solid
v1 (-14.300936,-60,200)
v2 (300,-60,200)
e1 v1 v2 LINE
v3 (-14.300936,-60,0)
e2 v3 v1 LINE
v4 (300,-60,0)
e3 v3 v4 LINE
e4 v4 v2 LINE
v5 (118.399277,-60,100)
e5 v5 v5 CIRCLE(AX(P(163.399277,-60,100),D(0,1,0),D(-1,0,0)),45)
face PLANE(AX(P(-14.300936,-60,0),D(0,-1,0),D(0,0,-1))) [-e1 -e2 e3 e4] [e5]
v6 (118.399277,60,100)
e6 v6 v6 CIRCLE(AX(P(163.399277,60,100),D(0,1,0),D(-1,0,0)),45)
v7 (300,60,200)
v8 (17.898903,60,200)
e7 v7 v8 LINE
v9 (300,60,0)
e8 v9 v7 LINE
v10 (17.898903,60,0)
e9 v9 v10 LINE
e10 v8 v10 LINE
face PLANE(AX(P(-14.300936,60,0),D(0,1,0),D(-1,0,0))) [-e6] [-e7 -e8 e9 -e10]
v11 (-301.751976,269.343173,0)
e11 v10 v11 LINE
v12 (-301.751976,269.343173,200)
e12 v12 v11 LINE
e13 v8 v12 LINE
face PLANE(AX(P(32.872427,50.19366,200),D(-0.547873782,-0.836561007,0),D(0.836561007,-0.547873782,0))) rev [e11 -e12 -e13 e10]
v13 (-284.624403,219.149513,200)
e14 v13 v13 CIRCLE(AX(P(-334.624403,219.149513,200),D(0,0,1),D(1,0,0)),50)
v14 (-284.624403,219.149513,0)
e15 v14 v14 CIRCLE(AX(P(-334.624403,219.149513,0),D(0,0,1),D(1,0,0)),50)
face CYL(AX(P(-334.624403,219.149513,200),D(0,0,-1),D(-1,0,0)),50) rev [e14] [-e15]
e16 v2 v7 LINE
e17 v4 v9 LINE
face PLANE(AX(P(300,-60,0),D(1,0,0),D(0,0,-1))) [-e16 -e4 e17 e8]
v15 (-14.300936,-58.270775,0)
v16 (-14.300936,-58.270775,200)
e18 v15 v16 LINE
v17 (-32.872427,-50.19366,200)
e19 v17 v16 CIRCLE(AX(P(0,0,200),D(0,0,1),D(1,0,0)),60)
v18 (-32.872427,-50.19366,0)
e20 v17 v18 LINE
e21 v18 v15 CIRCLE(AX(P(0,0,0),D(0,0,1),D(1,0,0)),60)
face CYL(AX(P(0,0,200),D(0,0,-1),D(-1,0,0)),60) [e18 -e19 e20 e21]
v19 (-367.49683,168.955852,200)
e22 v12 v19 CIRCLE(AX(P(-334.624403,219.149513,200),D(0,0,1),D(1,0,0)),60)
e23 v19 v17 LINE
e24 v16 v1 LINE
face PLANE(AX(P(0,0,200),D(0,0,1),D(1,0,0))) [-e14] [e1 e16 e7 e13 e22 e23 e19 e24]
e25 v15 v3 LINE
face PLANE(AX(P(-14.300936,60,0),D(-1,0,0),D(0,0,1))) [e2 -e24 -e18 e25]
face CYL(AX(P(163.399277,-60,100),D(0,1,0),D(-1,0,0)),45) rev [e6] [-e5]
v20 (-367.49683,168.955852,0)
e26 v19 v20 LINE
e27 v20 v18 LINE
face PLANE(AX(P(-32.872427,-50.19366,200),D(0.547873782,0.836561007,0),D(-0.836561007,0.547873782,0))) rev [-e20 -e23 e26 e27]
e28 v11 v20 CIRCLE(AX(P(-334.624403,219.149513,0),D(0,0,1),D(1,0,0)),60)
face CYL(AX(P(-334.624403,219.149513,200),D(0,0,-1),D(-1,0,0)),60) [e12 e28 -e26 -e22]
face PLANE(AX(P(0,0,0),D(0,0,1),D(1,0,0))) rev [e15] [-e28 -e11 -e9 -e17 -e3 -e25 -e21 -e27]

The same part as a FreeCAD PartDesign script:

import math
import FreeCAD as App
import Part
import Sketcher
from FreeCAD import Vector

doc = App.newDocument("Part")
body = doc.addObject("PartDesign::Body", "Body")

# Sketch on XY plane
sketch1 = body.newObject("Sketcher::SketchObject", "Sketch")
sketch1.AttachmentSupport = (doc.getObject("XY_Plane"), [""])
sketch1.MapMode = "FlatFace"
sketch1.addGeometry(Part.LineSegment(Vector(-367, 169, 0), Vector(-33, -50, 0)), False)
sketch1.addGeometry(Part.ArcOfCircle(Part.Circle(Vector(0, 0, 0), Vector(0, 0, 1), 60), math.radians(-123), math.radians(57)), False)
sketch1.addGeometry(Part.LineSegment(Vector(33, 50, 0), Vector(-302, 269, 0)), False)
sketch1.addGeometry(Part.ArcOfCircle(Part.Circle(Vector(-335, 219, 0), Vector(0, 0, 1), 60), math.radians(57), math.radians(237)), False)
sketch1.addGeometry(Part.Circle(Vector(-335, 219, 0), Vector(0, 0, 1), 50), False)
sketch1.addConstraint(Sketcher.Constraint("Tangent", 0, 2, 1, 1))
sketch1.addConstraint(Sketcher.Constraint("Tangent", 1, 2, 2, 1))
sketch1.addConstraint(Sketcher.Constraint("Tangent", 2, 2, 3, 1))
sketch1.addConstraint(Sketcher.Constraint("Tangent", 3, 2, 0, 1))
sketch1.addConstraint(Sketcher.Constraint("Coincident", 1, 3, -1, 1))
sketch1.addConstraint(Sketcher.Constraint("Coincident", 4, 3, 3, 3))
sketch1.addConstraint(Sketcher.Constraint("Equal", 1, 3))
sketch1.addConstraint(Sketcher.Constraint("Diameter", 4, 100.0))
sketch1.addConstraint(Sketcher.Constraint("Radius", 1, 60.0))
sketch1.addConstraint(Sketcher.Constraint("Distance", 0, 400.0))
sketch1.addConstraint(Sketcher.Constraint("DistanceY", 0, 2, -1, 1, 50.19366))
pad1 = body.newObject("PartDesign::Pad", "Pad")
pad1.Profile = sketch1
pad1.Length = 200

# Sketch on XY plane
sketch2 = body.newObject("Sketcher::SketchObject", "Sketch001")
sketch2.AttachmentSupport = (doc.getObject("XY_Plane"), [""])
sketch2.MapMode = "FlatFace"
sketch2.AttachmentOffset = App.Placement(Vector(0, 0, 200), App.Rotation())
sketch2.addGeometry(Part.LineSegment(Vector(-14, 60, 0), Vector(-14, -60, 0)), False)
sketch2.addGeometry(Part.LineSegment(Vector(-14, -60, 0), Vector(300, -60, 0)), False)
sketch2.addGeometry(Part.LineSegment(Vector(300, -60, 0), Vector(300, 60, 0)), False)
sketch2.addGeometry(Part.LineSegment(Vector(300, 60, 0), Vector(-14, 60, 0)), False)
sketch2.addConstraint(Sketcher.Constraint("Coincident", 0, 2, 1, 1))
sketch2.addConstraint(Sketcher.Constraint("Coincident", 1, 2, 2, 1))
sketch2.addConstraint(Sketcher.Constraint("Coincident", 2, 2, 3, 1))
sketch2.addConstraint(Sketcher.Constraint("Coincident", 3, 2, 0, 1))
sketch2.addConstraint(Sketcher.Constraint("Vertical", 0))
sketch2.addConstraint(Sketcher.Constraint("Horizontal", 1))
sketch2.addConstraint(Sketcher.Constraint("Vertical", 2))
sketch2.addConstraint(Sketcher.Constraint("Horizontal", 3))
sketch2.addConstraint(Sketcher.Constraint("DistanceY", 0, 2, 0, 1, 120.0))
sketch2.addConstraint(Sketcher.Constraint("DistanceY", 0, 2, -1, 1, 60.0))
sketch2.addConstraint(Sketcher.Constraint("DistanceX", -1, 1, 1, 2, 300.0))
sketch2.addConstraint(Sketcher.Constraint("DistanceX", 1, 1, 1, 2, 314.300936))
pad2 = body.newObject("PartDesign::Pad", "Pad001")
pad2.Profile = sketch2
pad2.Length = 200
pad2.Reversed = True

# Sketch on XZ plane
sketch3 = body.newObject("Sketcher::SketchObject", "Sketch002")
sketch3.AttachmentSupport = (doc.getObject("XZ_Plane"), [""])
sketch3.MapMode = "FlatFace"
sketch3.AttachmentOffset = App.Placement(Vector(0, 0, -60), App.Rotation())
sketch3.addGeometry(Part.Circle(Vector(163, 100, 0), Vector(0, 0, 1), 45), False)
sketch3.addConstraint(Sketcher.Constraint("Diameter", 0, 90.0))
sketch3.addConstraint(Sketcher.Constraint("DistanceY", -1, 1, 0, 3, 100.0))
sketch3.addConstraint(Sketcher.Constraint("DistanceX", -1, 1, 0, 3, 163.399277))
pocket1 = body.newObject("PartDesign::Pocket", "Pocket")
pocket1.Profile = sketch3
pocket1.Type = "ThroughAll"
pocket1.Reversed = True

doc.recompute()
